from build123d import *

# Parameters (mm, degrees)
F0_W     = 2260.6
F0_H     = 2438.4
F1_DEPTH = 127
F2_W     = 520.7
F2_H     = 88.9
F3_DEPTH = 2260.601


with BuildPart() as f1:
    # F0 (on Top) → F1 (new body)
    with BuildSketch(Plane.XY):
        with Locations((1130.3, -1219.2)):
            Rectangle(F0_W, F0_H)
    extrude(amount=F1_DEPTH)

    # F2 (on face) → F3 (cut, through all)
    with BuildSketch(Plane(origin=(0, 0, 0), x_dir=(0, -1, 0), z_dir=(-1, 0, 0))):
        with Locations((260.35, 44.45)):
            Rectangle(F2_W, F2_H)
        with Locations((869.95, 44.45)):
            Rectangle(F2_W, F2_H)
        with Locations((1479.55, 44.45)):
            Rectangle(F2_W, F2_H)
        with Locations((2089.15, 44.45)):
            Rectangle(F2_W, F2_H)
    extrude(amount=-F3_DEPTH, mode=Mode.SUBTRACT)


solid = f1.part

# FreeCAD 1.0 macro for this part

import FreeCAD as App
import Part
import Sketcher
from FreeCAD import Vector
Q = App.Units.Quantity

doc = App.newDocument("Part")
body = doc.addObject("PartDesign::Body", "Body")

# Sketch on XY plane
sketch1 = body.newObject("Sketcher::SketchObject", "Sketch")
sketch1.AttachmentSupport = (doc.getObject("XY_Plane"), [""])
sketch1.MapMode = "FlatFace"
sketch1.addGeometry(Part.LineSegment(Vector(0, 0, 0), Vector(0, -2438, 0)), False)
sketch1.addGeometry(Part.LineSegment(Vector(0, -2438, 0), Vector(2261, -2438, 0)), False)
sketch1.addGeometry(Part.LineSegment(Vector(2261, -2438, 0), Vector(2261, 0, 0)), False)
sketch1.addGeometry(Part.LineSegment(Vector(2261, 0, 0), Vector(0, 0, 0)), False)
sketch1.addConstraint(Sketcher.Constraint("Coincident", 0, 2, 1, 1))
sketch1.addConstraint(Sketcher.Constraint("Coincident", 1, 2, 2, 1))
sketch1.addConstraint(Sketcher.Constraint("Coincident", 2, 2, 3, 1))
sketch1.addConstraint(Sketcher.Constraint("Coincident", 3, 2, 0, 1))
sketch1.addConstraint(Sketcher.Constraint("Vertical", 0))
sketch1.addConstraint(Sketcher.Constraint("Horizontal", 1))
sketch1.addConstraint(Sketcher.Constraint("Vertical", 2))
sketch1.addConstraint(Sketcher.Constraint("Horizontal", 3))
sketch1.addConstraint(Sketcher.Constraint("Coincident", 3, 2, -1, 1))
sketch1.addConstraint(Sketcher.Constraint("DistanceX", 1, 1, 1, 2, Q("89 in")))
sketch1.addConstraint(Sketcher.Constraint("DistanceY", 0, 2, 0, 1, Q("96 in")))
pad1 = body.newObject("PartDesign::Pad", "Pad")
pad1.Profile = sketch1
pad1.Length = Q("5 in")

# Sketch on YZ plane
sketch2 = body.newObject("Sketcher::SketchObject", "Sketch001")
sketch2.AttachmentSupport = (doc.getObject("YZ_Plane"), [""])
sketch2.MapMode = "FlatFace"
sketch2.addGeometry(Part.LineSegment(Vector(0, 89, 0), Vector(0, 0, 0)), False)
sketch2.addGeometry(Part.LineSegment(Vector(0, 0, 0), Vector(-521, 0, 0)), False)
sketch2.addGeometry(Part.LineSegment(Vector(-521, 0, 0), Vector(-521, 89, 0)), False)
sketch2.addGeometry(Part.LineSegment(Vector(-521, 89, 0), Vector(0, 89, 0)), False)
sketch2.addGeometry(Part.LineSegment(Vector(-610, 89, 0), Vector(-610, 0, 0)), False)
sketch2.addGeometry(Part.LineSegment(Vector(-610, 0, 0), Vector(-1130, 0, 0)), False)
sketch2.addGeometry(Part.LineSegment(Vector(-1130, 0, 0), Vector(-1130, 89, 0)), False)
sketch2.addGeometry(Part.LineSegment(Vector(-1130, 89, 0), Vector(-610, 89, 0)), False)
sketch2.addGeometry(Part.LineSegment(Vector(-1219, 89, 0), Vector(-1219, 0, 0)), False)
sketch2.addGeometry(Part.LineSegment(Vector(-1219, 0, 0), Vector(-1740, 0, 0)), False)
sketch2.addGeometry(Part.LineSegment(Vector(-1740, 0, 0), Vector(-1740, 89, 0)), False)
sketch2.addGeometry(Part.LineSegment(Vector(-1740, 89, 0), Vector(-1219, 89, 0)), False)
sketch2.addGeometry(Part.LineSegment(Vector(-1829, 89, 0), Vector(-1829, 0, 0)), False)
sketch2.addGeometry(Part.LineSegment(Vector(-1829, 0, 0), Vector(-2350, 0, 0)), False)
sketch2.addGeometry(Part.LineSegment(Vector(-2350, 0, 0), Vector(-2350, 89, 0)), False)
sketch2.addGeometry(Part.LineSegment(Vector(-2350, 89, 0), Vector(-1829, 89, 0)), False)
sketch2.addConstraint(Sketcher.Constraint("Coincident", 0, 2, 1, 1))
sketch2.addConstraint(Sketcher.Constraint("Coincident", 1, 2, 2, 1))
sketch2.addConstraint(Sketcher.Constraint("Coincident", 2, 2, 3, 1))
sketch2.addConstraint(Sketcher.Constraint("Coincident", 3, 2, 0, 1))
sketch2.addConstraint(Sketcher.Constraint("Coincident", 4, 2, 5, 1))
sketch2.addConstraint(Sketcher.Constraint("Coincident", 5, 2, 6, 1))
sketch2.addConstraint(Sketcher.Constraint("Coincident", 6, 2, 7, 1))
sketch2.addConstraint(Sketcher.Constraint("Coincident", 7, 2, 4, 1))
sketch2.addConstraint(Sketcher.Constraint("Coincident", 8, 2, 9, 1))
sketch2.addConstraint(Sketcher.Constraint("Coincident", 9, 2, 10, 1))
sketch2.addConstraint(Sketcher.Constraint("Coincident", 10, 2, 11, 1))
sketch2.addConstraint(Sketcher.Constraint("Coincident", 11, 2, 8, 1))
sketch2.addConstraint(Sketcher.Constraint("Coincident", 12, 2, 13, 1))
sketch2.addConstraint(Sketcher.Constraint("Coincident", 13, 2, 14, 1))
sketch2.addConstraint(Sketcher.Constraint("Coincident", 14, 2, 15, 1))
sketch2.addConstraint(Sketcher.Constraint("Coincident", 15, 2, 12, 1))
sketch2.addConstraint(Sketcher.Constraint("Vertical", 0))
sketch2.addConstraint(Sketcher.Constraint("Horizontal", 1))
sketch2.addConstraint(Sketcher.Constraint("Vertical", 2))
sketch2.addConstraint(Sketcher.Constraint("Horizontal", 3))
sketch2.addConstraint(Sketcher.Constraint("Vertical", 4))
sketch2.addConstraint(Sketcher.Constraint("Horizontal", 5))
sketch2.addConstraint(Sketcher.Constraint("Vertical", 6))
sketch2.addConstraint(Sketcher.Constraint("Horizontal", 7))
sketch2.addConstraint(Sketcher.Constraint("Vertical", 8))
sketch2.addConstraint(Sketcher.Constraint("Horizontal", 9))
sketch2.addConstraint(Sketcher.Constraint("Vertical", 10))
sketch2.addConstraint(Sketcher.Constraint("Horizontal", 11))
sketch2.addConstraint(Sketcher.Constraint("Vertical", 12))
sketch2.addConstraint(Sketcher.Constraint("Horizontal", 13))
sketch2.addConstraint(Sketcher.Constraint("Vertical", 14))
sketch2.addConstraint(Sketcher.Constraint("Horizontal", 15))
sketch2.addConstraint(Sketcher.Constraint("Coincident", 0, 2, -1, 1))
sketch2.addConstraint(Sketcher.Constraint("PointOnObject", 4, 2, -1))
sketch2.addConstraint(Sketcher.Constraint("PointOnObject", 8, 2, -1))
sketch2.addConstraint(Sketcher.Constraint("PointOnObject", 12, 2, -1))
sketch2.addConstraint(Sketcher.Constraint("Horizontal", 3, 2, 6, 2))
sketch2.addConstraint(Sketcher.Constraint("Horizontal", 7, 2, 10, 2))
sketch2.addConstraint(Sketcher.Constraint("Horizontal", 11, 2, 14, 2))
sketch2.addConstraint(Sketcher.Constraint("Equal", 3, 5))
sketch2.addConstraint(Sketcher.Constraint("Equal", 7, 9))
sketch2.addConstraint(Sketcher.Constraint("Equal", 11, 13))
sketch2.addConstraint(Sketcher.Constraint("DistanceX", 1, 2, 1, 1, Q("20.5 in")))
sketch2.addConstraint(Sketcher.Constraint("DistanceY", 0, 2, 0, 1, Q("3.5 in")))
sketch2.addConstraint(Sketcher.Constraint("DistanceX", 4, 2, -1, 1, Q("24 in")))
sketch2.addConstraint(Sketcher.Constraint("DistanceX", 8, 2, -1, 1, Q("48 in")))
sketch2.addConstraint(Sketcher.Constraint("DistanceX", 12, 2, -1, 1, Q("72 in")))
pocket1 = body.newObject("PartDesign::Pocket", "Pocket")
pocket1.Profile = sketch2
pocket1.Type = "ThroughAll"
pocket1.Reversed = True

doc.recompute()
